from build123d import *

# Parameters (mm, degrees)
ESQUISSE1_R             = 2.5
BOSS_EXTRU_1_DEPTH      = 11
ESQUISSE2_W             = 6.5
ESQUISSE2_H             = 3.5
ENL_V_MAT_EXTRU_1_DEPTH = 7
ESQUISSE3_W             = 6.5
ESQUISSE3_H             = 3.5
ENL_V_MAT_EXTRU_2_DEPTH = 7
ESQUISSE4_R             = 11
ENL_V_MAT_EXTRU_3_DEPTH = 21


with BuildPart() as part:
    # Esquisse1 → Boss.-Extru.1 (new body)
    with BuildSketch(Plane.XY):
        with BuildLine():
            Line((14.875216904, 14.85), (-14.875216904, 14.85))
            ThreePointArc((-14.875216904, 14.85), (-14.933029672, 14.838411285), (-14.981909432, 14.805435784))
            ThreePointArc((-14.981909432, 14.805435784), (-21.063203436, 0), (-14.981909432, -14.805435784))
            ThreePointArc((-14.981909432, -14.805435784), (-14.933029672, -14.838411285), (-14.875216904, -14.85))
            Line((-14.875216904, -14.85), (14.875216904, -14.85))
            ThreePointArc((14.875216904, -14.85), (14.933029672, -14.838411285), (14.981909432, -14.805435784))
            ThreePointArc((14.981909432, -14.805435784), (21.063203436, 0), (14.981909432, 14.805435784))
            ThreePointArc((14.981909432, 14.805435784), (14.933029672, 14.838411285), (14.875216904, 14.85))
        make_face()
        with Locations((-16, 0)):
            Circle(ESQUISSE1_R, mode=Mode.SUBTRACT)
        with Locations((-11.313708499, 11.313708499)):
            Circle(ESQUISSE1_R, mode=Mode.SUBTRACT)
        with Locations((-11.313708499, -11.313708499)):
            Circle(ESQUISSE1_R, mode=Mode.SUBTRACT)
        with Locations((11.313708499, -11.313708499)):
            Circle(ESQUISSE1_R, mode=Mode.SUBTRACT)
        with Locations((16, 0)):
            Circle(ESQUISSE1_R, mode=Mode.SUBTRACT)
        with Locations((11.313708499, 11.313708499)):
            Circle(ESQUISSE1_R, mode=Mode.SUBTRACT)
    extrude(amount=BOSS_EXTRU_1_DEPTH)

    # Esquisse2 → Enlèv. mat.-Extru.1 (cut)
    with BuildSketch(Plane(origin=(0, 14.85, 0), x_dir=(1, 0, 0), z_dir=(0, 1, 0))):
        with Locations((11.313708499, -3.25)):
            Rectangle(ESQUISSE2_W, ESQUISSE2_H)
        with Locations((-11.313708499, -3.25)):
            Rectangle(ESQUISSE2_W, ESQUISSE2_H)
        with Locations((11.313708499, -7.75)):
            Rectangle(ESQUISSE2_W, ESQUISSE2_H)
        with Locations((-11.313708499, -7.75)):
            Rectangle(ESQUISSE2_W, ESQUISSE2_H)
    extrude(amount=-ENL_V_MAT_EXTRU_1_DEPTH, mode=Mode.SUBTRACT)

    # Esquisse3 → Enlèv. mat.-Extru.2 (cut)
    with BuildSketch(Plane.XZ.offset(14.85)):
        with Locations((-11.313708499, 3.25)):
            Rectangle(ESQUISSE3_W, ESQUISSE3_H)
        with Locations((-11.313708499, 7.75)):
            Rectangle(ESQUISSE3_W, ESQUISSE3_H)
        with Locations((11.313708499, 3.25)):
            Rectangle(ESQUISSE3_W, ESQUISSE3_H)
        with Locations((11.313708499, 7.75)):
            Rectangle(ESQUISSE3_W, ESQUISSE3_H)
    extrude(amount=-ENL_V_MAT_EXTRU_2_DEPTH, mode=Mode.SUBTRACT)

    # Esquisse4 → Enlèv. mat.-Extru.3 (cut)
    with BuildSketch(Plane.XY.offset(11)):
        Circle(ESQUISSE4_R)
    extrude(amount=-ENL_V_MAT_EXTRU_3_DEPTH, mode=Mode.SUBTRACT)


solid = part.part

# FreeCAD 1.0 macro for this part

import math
import FreeCAD as App
import Part
import Sketcher


def add_polygon(sketch, points):
    """Adds a closed chain of lines whose ends are joined by coincident constraints."""
    first, n = sketch.GeometryCount, len(points)
    for a, b in zip(points, points[1:] + points[:1]):
        sketch.addGeometry(Part.LineSegment(App.Vector(*a, 0), App.Vector(*b, 0)), False)
    for i in range(n):
        sketch.addConstraint(Sketcher.Constraint("Coincident", first + i, 2, first + (i + 1) % n, 1))

doc = App.newDocument("Part")
body = doc.addObject("PartDesign::Body", "Body")

# Sketch on XY plane
sketch1 = doc.addObject("Sketcher::SketchObject", "Sketch")
body.addObject(sketch1)
sketch1.AttachmentSupport = (doc.XY_Plane, [""])
sketch1.MapMode = "FlatFace"
sketch1.addGeometry([
    Part.LineSegment(App.Vector(14.88, 14.85, 0), App.Vector(-14.88, 14.85, 0)),  # 0
    Part.ArcOfCircle(Part.Circle(App.Vector(-14.88, 14.7, 0), App.Vector(0, 0, 1), 0.15), math.radians(90), math.radians(135)),  # 1
    Part.ArcOfCircle(Part.Circle(App.Vector(0, 0, 0), App.Vector(0, 0, 1), 21.06), math.radians(135), math.radians(225)),  # 2
    Part.ArcOfCircle(Part.Circle(App.Vector(-14.88, -14.7, 0), App.Vector(0, 0, 1), 0.15), math.radians(-135), math.radians(-90)),  # 3
    Part.LineSegment(App.Vector(-14.88, -14.85, 0), App.Vector(14.88, -14.85, 0)),  # 4
    Part.ArcOfCircle(Part.Circle(App.Vector(14.88, -14.7, 0), App.Vector(0, 0, 1), 0.15), math.radians(-90), math.radians(-45)),  # 5
    Part.ArcOfCircle(Part.Circle(App.Vector(0, 0, 0), App.Vector(0, 0, 1), 21.06), math.radians(-45), math.radians(45)),  # 6
    Part.ArcOfCircle(Part.Circle(App.Vector(14.88, 14.7, 0), App.Vector(0, 0, 1), 0.15), math.radians(45), math.radians(90)),  # 7
    Part.Circle(App.Vector(-11.31, -11.31, 0), App.Vector(0, 0, 1), 2.5),  # 8
    Part.Circle(App.Vector(11.31, -11.31, 0), App.Vector(0, 0, 1), 2.5),  # 9
    Part.Circle(App.Vector(-16, 0, 0), App.Vector(0, 0, 1), 2.5),  # 10
    Part.Circle(App.Vector(-11.31, 11.31, 0), App.Vector(0, 0, 1), 2.5),  # 11
    Part.Circle(App.Vector(16, 0, 0), App.Vector(0, 0, 1), 2.5),  # 12
    Part.Circle(App.Vector(11.31, 11.31, 0), App.Vector(0, 0, 1), 2.5),  # 13
], False)
sketch1.addConstraint([
    Sketcher.Constraint("Tangent", 0, 2, 1, 1),
    Sketcher.Constraint("Tangent", 1, 2, 2, 1),
    Sketcher.Constraint("Tangent", 2, 2, 3, 1),
    Sketcher.Constraint("Tangent", 3, 2, 4, 1),
    Sketcher.Constraint("Tangent", 4, 2, 5, 1),
    Sketcher.Constraint("Tangent", 5, 2, 6, 1),
    Sketcher.Constraint("Tangent", 6, 2, 7, 1),
    Sketcher.Constraint("Tangent", 7, 2, 0, 1),
    Sketcher.Constraint("Horizontal", 0),
    Sketcher.Constraint("Horizontal", 4),
    Sketcher.Constraint("Coincident", 2, 3, -1, 1),
    Sketcher.Constraint("Coincident", 6, 3, -1, 1),
    Sketcher.Constraint("Equal", 1, 3),
    Sketcher.Constraint("Equal", 3, 5),
    Sketcher.Constraint("Equal", 2, 6),
    Sketcher.Constraint("Equal", 5, 7),
    Sketcher.Constraint("Equal", 8, 9),
    Sketcher.Constraint("Equal", 9, 10),
    Sketcher.Constraint("Equal", 10, 11),
    Sketcher.Constraint("Equal", 11, 12),
    Sketcher.Constraint("Equal", 12, 13),
    Sketcher.Constraint("Symmetric", 9, 3, 11, 3, -1, 1),
    Sketcher.Constraint("Symmetric", 10, 3, 12, 3, -1, 1),
    Sketcher.Constraint("Symmetric", 8, 3, 13, 3, -1, 1),
    Sketcher.Constraint("Symmetric", 8, 3, 9, 3, -2),
    Sketcher.Constraint("PointOnObject", 10, 3, -1),
    Sketcher.Constraint("Vertical", 1, 3, 3, 3),
    Sketcher.Constraint("Diameter", 8, 5.0),
    Sketcher.Constraint("Radius", 1, 0.15),
    Sketcher.Constraint("DistanceX", 10, 3, -1, 1, 16.0),
    Sketcher.Constraint("DistanceY", -1, 1, 1, 3, 14.7),
    Sketcher.Constraint("Radius", 2, 21.063203),
    Sketcher.Constraint("DistanceX", 1, 2, 11, 3, 3.668201),
    Sketcher.Constraint("DistanceY", 8, 3, -1, 1, 11.313708),
])
pad1 = doc.addObject("PartDesign::Pad", "Pad")
body.addObject(pad1)
pad1.Profile = sketch1
pad1.Length = 11

# Sketch on XZ plane
sketch2 = doc.addObject("Sketcher::SketchObject", "Sketch001")
body.addObject(sketch2)
sketch2.AttachmentSupport = (doc.XZ_Plane, [""])
sketch2.MapMode = "FlatFace"
sketch2.AttachmentOffset = App.Placement(App.Vector(0, 0, -14.85), App.Rotation())
add_polygon(sketch2, [(8.1, 1.5), (8.1, 5), (14.6, 5), (14.6, 1.5)])  # lines 0-3
add_polygon(sketch2, [(-14.6, 1.5), (-14.6, 5), (-8.1, 5), (-8.1, 1.5)])  # lines 4-7
add_polygon(sketch2, [(8.1, 6), (8.1, 9.5), (14.6, 9.5), (14.6, 6)])  # lines 8-11
add_polygon(sketch2, [(-14.6, 6), (-14.6, 9.5), (-8.1, 9.5), (-8.1, 6)])  # lines 12-15
sketch2.addConstraint([
    Sketcher.Constraint("Vertical", 0),
    Sketcher.Constraint("Horizontal", 1),
    Sketcher.Constraint("Vertical", 2),
    Sketcher.Constraint("Horizontal", 3),
    Sketcher.Constraint("Vertical", 4),
    Sketcher.Constraint("Horizontal", 5),
    Sketcher.Constraint("Vertical", 6),
    Sketcher.Constraint("Horizontal", 7),
    Sketcher.Constraint("Vertical", 8),
    Sketcher.Constraint("Horizontal", 9),
    Sketcher.Constraint("Vertical", 10),
    Sketcher.Constraint("Horizontal", 11),
    Sketcher.Constraint("Vertical", 12),
    Sketcher.Constraint("Horizontal", 13),
    Sketcher.Constraint("Vertical", 14),
    Sketcher.Constraint("Horizontal", 15),
    Sketcher.Constraint("Symmetric", 1, 2, 4, 2, -2),
    Sketcher.Constraint("Symmetric", 3, 2, 6, 2, -2),
    Sketcher.Constraint("Symmetric", 9, 2, 12, 2, -2),
    Sketcher.Constraint("Symmetric", 11, 2, 14, 2, -2),
    Sketcher.Constraint("Vertical", 3, 2, 8, 2),
    Sketcher.Constraint("Vertical", 2, 2, 9, 2),
    Sketcher.Constraint("Equal", 6, 8),
    Sketcher.Constraint("DistanceX", 1, 1, 1, 2, 6.5),
    Sketcher.Constraint("DistanceY", 0, 1, 0, 2, 3.5),
    Sketcher.Constraint("DistanceY", -1, 1, 0, 2, 5.0),
    Sketcher.Constraint("DistanceY", -1, 1, 10, 2, 6.0),
    Sketcher.Constraint("DistanceX", -1, 1, 0, 2, 8.063708),
])
pocket1 = doc.addObject("PartDesign::Pocket", "Pocket")
body.addObject(pocket1)
pocket1.Profile = sketch2
pocket1.Length = 7
pocket1.Reversed = True

# Sketch on XZ plane
sketch3 = doc.addObject("Sketcher::SketchObject", "Sketch002")
body.addObject(sketch3)
sketch3.AttachmentSupport = (doc.XZ_Plane, [""])
sketch3.MapMode = "FlatFace"
sketch3.AttachmentOffset = App.Placement(App.Vector(0, 0, 14.85), App.Rotation())
add_polygon(sketch3, [(-14.6, 5), (-14.6, 1.5), (-8.1, 1.5), (-8.1, 5)])  # lines 0-3
add_polygon(sketch3, [(-14.6, 9.5), (-14.6, 6), (-8.1, 6), (-8.1, 9.5)])  # lines 4-7
add_polygon(sketch3, [(8.1, 5), (8.1, 1.5), (14.6, 1.5), (14.6, 5)])  # lines 8-11
add_polygon(sketch3, [(8.1, 9.5), (8.1, 6), (14.6, 6), (14.6, 9.5)])  # lines 12-15
sketch3.addConstraint([
    Sketcher.Constraint("Vertical", 0),
    Sketcher.Constraint("Horizontal", 1),
    Sketcher.Constraint("Vertical", 2),
    Sketcher.Constraint("Horizontal", 3),
    Sketcher.Constraint("Vertical", 4),
    Sketcher.Constraint("Horizontal", 5),
    Sketcher.Constraint("Vertical", 6),
    Sketcher.Constraint("Horizontal", 7),
    Sketcher.Constraint("Vertical", 8),
    Sketcher.Constraint("Horizontal", 9),
    Sketcher.Constraint("Vertical", 10),
    Sketcher.Constraint("Horizontal", 11),
    Sketcher.Constraint("Vertical", 12),
    Sketcher.Constraint("Horizontal", 13),
    Sketcher.Constraint("Vertical", 14),
    Sketcher.Constraint("Horizontal", 15),
    Sketcher.Constraint("Symmetric", 1, 2, 8, 2, -2),
    Sketcher.Constraint("Symmetric", 3, 2, 10, 2, -2),
    Sketcher.Constraint("Symmetric", 5, 2, 12, 2, -2),
    Sketcher.Constraint("Symmetric", 7, 2, 14, 2, -2),
    Sketcher.Constraint("Vertical", 3, 2, 4, 2),
    Sketcher.Constraint("Vertical", 2, 2, 5, 2),
    Sketcher.Constraint("Equal", 2, 4),
    Sketcher.Constraint("DistanceX", 1, 1, 1, 2, 6.5),
    Sketcher.Constraint("DistanceY", 0, 2, 0, 1, 3.5),
    Sketcher.Constraint("DistanceY", -1, 1, 2, 2, 5.0),
    Sketcher.Constraint("DistanceY", -1, 1, 4, 2, 6.0),
    Sketcher.Constraint("DistanceX", 0, 2, -1, 1, 14.563708),
])
pocket2 = doc.addObject("PartDesign::Pocket", "Pocket001")
body.addObject(pocket2)
pocket2.Profile = sketch3
pocket2.Length = 7

# Sketch on XY plane
sketch4 = doc.addObject("Sketcher::SketchObject", "Sketch003")
body.addObject(sketch4)
sketch4.AttachmentSupport = (doc.XY_Plane, [""])
sketch4.MapMode = "FlatFace"
sketch4.AttachmentOffset = App.Placement(App.Vector(0, 0, 11), App.Rotation())
sketch4.addGeometry(Part.Circle(App.Vector(0, 0, 0), App.Vector(0, 0, 1), 11), False)
sketch4.addConstraint([
    Sketcher.Constraint("Coincident", 0, 3, -1, 1),
    Sketcher.Constraint("Diameter", 0, 22.0),
])
pocket3 = doc.addObject("PartDesign::Pocket", "Pocket002")
body.addObject(pocket3)
pocket3.Profile = sketch4
pocket3.Length = 21

doc.recompute()
